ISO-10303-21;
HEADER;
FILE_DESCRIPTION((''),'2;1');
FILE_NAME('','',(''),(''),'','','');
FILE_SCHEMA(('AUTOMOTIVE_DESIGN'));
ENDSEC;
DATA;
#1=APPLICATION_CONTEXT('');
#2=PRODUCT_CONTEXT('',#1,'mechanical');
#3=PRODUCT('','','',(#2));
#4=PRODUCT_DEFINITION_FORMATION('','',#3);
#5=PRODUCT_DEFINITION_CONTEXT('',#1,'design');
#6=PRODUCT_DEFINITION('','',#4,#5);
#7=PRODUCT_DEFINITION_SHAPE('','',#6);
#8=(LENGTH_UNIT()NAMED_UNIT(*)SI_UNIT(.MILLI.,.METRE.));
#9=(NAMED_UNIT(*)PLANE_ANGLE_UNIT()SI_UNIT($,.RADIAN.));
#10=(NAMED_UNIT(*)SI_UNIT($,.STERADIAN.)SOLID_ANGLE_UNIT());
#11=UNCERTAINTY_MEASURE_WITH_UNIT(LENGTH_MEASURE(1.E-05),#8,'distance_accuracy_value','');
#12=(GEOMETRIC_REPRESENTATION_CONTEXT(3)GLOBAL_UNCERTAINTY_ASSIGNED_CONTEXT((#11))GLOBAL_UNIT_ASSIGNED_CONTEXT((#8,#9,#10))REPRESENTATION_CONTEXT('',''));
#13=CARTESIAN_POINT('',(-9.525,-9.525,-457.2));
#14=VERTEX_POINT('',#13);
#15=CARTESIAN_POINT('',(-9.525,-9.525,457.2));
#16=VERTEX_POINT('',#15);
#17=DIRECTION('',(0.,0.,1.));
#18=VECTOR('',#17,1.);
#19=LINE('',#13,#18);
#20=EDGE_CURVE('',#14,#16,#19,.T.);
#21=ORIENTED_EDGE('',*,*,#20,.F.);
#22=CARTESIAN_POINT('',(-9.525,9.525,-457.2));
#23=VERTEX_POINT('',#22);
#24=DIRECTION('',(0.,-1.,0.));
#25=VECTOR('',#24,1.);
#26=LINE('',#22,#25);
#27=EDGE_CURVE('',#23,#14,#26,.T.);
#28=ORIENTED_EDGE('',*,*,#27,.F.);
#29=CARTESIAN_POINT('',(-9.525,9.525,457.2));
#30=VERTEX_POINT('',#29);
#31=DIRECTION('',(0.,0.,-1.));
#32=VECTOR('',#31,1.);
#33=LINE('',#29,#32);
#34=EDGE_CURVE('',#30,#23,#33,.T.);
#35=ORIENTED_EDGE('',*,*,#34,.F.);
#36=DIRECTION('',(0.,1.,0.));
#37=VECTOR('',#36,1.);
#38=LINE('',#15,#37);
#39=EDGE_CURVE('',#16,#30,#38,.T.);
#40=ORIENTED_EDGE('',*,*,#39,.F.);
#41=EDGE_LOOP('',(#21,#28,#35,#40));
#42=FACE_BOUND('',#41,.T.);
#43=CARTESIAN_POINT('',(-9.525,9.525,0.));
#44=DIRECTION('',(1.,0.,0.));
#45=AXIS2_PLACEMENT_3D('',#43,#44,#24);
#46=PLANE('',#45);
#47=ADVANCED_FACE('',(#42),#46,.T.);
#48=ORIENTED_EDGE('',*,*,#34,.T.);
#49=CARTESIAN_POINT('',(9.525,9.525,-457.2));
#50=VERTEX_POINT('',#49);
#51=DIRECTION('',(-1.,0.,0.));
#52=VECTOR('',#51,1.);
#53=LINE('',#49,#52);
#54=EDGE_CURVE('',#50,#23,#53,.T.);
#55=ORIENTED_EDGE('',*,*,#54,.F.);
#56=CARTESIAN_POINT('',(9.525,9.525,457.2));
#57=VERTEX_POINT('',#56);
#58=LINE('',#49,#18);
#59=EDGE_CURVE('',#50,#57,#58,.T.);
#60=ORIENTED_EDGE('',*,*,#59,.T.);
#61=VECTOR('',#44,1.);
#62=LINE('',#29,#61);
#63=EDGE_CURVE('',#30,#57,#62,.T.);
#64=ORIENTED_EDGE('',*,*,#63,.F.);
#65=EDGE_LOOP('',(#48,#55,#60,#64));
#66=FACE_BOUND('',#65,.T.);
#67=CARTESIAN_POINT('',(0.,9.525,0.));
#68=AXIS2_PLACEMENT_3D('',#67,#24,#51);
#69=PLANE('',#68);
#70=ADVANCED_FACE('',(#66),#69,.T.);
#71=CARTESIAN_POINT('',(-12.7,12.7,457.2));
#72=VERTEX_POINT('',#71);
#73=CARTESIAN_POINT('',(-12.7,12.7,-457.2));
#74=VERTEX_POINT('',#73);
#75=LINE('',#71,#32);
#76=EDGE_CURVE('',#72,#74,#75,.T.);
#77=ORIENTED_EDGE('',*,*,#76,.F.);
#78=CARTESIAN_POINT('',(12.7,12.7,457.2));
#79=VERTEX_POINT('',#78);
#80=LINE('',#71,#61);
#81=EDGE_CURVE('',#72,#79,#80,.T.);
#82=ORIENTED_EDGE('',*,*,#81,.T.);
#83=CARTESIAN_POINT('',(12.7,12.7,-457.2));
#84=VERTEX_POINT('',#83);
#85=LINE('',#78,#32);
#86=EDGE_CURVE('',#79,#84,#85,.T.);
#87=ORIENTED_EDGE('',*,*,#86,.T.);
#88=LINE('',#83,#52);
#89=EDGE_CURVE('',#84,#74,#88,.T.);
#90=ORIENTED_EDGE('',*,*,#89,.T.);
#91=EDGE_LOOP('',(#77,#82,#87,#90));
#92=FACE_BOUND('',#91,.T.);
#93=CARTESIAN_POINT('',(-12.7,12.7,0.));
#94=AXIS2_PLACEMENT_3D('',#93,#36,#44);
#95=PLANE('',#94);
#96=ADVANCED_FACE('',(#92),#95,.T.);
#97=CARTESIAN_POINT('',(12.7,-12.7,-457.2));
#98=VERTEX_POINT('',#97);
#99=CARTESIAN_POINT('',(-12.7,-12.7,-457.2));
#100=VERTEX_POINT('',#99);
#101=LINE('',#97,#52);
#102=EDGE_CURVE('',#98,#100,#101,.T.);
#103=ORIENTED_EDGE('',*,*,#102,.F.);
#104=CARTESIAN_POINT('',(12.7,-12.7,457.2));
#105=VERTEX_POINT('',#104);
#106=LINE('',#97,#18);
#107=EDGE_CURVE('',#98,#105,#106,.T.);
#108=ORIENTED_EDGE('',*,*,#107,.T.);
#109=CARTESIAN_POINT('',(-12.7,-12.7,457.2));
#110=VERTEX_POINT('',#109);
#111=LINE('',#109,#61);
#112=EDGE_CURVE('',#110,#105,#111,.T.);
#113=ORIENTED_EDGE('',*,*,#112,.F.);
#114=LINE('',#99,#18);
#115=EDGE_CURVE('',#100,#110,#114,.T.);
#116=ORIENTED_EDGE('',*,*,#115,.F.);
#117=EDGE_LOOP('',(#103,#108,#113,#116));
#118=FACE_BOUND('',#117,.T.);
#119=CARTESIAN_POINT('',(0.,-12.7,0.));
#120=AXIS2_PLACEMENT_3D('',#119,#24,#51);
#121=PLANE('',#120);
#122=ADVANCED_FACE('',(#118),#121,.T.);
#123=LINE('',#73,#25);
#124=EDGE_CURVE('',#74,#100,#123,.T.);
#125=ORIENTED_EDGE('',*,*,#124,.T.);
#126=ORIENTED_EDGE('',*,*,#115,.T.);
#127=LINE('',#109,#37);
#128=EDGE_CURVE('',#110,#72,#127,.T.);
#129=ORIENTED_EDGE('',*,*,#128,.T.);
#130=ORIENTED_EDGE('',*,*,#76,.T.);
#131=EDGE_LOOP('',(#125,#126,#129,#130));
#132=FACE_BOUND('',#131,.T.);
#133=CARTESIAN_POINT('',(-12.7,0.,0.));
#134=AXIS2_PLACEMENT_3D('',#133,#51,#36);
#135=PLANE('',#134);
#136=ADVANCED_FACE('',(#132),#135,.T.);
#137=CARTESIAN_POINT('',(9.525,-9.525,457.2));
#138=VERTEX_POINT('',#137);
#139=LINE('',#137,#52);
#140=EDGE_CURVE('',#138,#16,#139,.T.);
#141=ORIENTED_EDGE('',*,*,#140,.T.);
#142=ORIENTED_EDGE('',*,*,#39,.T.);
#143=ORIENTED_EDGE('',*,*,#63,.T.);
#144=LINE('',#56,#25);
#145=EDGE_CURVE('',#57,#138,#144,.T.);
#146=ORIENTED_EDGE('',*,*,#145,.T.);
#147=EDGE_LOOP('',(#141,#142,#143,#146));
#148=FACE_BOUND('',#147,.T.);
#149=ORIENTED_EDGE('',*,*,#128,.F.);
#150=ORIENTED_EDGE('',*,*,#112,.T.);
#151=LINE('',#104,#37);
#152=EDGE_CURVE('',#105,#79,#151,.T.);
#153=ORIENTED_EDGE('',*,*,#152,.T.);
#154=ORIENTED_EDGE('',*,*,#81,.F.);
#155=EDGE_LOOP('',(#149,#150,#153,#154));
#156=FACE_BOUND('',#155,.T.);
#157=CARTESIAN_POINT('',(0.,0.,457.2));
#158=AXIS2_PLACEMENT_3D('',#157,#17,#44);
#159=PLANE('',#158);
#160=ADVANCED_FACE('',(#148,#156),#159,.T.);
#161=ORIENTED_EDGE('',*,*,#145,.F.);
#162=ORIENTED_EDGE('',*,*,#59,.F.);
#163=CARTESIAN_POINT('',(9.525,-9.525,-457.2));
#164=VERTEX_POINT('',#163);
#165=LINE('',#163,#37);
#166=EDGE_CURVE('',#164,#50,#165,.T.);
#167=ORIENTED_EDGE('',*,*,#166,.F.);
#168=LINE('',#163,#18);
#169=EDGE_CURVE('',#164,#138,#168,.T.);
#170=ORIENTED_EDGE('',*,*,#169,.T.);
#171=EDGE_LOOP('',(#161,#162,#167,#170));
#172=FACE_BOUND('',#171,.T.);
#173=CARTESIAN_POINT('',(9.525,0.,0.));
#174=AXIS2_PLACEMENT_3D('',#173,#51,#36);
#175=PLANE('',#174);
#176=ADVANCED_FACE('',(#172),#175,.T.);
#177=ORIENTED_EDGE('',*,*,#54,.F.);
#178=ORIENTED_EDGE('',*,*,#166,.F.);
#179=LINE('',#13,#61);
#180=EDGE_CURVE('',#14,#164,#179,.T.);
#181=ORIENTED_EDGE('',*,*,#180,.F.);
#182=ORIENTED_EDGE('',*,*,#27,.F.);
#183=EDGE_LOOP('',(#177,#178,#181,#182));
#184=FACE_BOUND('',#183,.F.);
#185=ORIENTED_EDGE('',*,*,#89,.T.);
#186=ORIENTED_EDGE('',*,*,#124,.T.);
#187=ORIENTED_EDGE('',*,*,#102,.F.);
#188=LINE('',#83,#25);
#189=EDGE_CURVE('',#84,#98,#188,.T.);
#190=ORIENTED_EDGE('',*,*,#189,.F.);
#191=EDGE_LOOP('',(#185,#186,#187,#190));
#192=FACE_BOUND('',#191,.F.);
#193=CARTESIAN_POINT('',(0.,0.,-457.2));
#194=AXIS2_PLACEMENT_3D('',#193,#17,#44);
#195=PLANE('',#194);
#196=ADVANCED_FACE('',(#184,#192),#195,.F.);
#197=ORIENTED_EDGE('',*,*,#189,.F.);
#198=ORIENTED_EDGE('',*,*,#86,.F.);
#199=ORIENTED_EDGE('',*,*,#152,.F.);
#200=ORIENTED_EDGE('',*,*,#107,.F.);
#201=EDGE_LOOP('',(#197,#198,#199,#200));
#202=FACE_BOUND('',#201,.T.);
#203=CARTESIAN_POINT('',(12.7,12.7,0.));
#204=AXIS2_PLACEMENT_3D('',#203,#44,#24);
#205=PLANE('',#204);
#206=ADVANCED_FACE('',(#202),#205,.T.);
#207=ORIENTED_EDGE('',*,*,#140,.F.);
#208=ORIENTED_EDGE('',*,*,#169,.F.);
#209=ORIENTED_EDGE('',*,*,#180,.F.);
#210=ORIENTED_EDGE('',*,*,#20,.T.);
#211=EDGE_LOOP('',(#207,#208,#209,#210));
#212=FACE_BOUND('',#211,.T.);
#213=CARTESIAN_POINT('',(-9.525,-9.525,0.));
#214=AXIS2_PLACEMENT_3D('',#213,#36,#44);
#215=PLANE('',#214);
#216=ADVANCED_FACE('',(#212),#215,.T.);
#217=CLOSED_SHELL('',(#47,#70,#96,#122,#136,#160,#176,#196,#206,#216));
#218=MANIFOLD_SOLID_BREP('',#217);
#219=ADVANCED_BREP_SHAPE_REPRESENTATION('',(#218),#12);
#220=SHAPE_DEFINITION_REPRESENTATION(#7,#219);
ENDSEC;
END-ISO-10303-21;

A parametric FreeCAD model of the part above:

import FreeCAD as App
import Part
import Sketcher
from FreeCAD import Vector
Q = App.Units.Quantity

doc = App.newDocument("Part")
params = doc.addObject("Spreadsheet::Sheet", "Params")
for row, (alias, value) in enumerate([
    ("sketch1_width", "1 in"),
    ("pad1_length", "36 in"),
], start=1):
    params.set(f"A{row}", alias)
    params.set(f"B{row}", "=" + value)
    params.setAlias(f"B{row}", alias)

body = doc.addObject("PartDesign::Body", "Body")

sketch1 = body.newObject("Sketcher::SketchObject", "Sketch")
sketch1.AttachmentSupport = (doc.getObject("XY_Plane"), [""])
sketch1.MapMode = "FlatFace"
sketch1.addGeometry([
    Part.LineSegment(Vector(-13, 13, 0), Vector(-13, -13, 0)),
    Part.LineSegment(Vector(-13, -13, 0), Vector(13, -13, 0)),
    Part.LineSegment(Vector(13, -13, 0), Vector(13, 13, 0)),
    Part.LineSegment(Vector(13, 13, 0), Vector(-13, 13, 0)),
    Part.LineSegment(Vector(-10, 10, 0), Vector(10, 10, 0)),
    Part.LineSegment(Vector(10, 10, 0), Vector(10, -10, 0)),
    Part.LineSegment(Vector(10, -10, 0), Vector(-10, -10, 0)),
    Part.LineSegment(Vector(-10, -10, 0), Vector(-10, 10, 0)),
], False)
sketch1.addConstraint([
    Sketcher.Constraint("Coincident", 0, 2, 1, 1),
    Sketcher.Constraint("Coincident", 1, 2, 2, 1),
    Sketcher.Constraint("Coincident", 2, 2, 3, 1),
    Sketcher.Constraint("Coincident", 3, 2, 0, 1),
    Sketcher.Constraint("Coincident", 4, 2, 5, 1),
    Sketcher.Constraint("Coincident", 5, 2, 6, 1),
    Sketcher.Constraint("Coincident", 6, 2, 7, 1),
    Sketcher.Constraint("Coincident", 7, 2, 4, 1),
    Sketcher.Constraint("Vertical", 0),
    Sketcher.Constraint("Horizontal", 1),
    Sketcher.Constraint("Vertical", 2),
    Sketcher.Constraint("Horizontal", 3),
    Sketcher.Constraint("Horizontal", 4),
    Sketcher.Constraint("Vertical", 5),
    Sketcher.Constraint("Horizontal", 6),
    Sketcher.Constraint("Vertical", 7),
    Sketcher.Constraint("Symmetric", 0, 2, 2, 2, -1, 1),
    Sketcher.Constraint("Symmetric", 4, 2, 6, 2, -1, 1),
    Sketcher.Constraint("Equal", 3, 0),
    Sketcher.Constraint("Equal", 6, 5),
    Sketcher.Constraint("DistanceX", 1, 1, 1, 2, Q("1 in")),
    Sketcher.Constraint("DistanceX", 4, 2, 2, 2, Q("0.125 in")),
])
sketch1.setExpression("Constraints[20]", "Params.sketch1_width")
pad1 = body.newObject("PartDesign::Pad", "Pad")
pad1.Profile = sketch1
pad1.setExpression("Length", "Params.pad1_length")
pad1.Midplane = True

doc.recompute()
